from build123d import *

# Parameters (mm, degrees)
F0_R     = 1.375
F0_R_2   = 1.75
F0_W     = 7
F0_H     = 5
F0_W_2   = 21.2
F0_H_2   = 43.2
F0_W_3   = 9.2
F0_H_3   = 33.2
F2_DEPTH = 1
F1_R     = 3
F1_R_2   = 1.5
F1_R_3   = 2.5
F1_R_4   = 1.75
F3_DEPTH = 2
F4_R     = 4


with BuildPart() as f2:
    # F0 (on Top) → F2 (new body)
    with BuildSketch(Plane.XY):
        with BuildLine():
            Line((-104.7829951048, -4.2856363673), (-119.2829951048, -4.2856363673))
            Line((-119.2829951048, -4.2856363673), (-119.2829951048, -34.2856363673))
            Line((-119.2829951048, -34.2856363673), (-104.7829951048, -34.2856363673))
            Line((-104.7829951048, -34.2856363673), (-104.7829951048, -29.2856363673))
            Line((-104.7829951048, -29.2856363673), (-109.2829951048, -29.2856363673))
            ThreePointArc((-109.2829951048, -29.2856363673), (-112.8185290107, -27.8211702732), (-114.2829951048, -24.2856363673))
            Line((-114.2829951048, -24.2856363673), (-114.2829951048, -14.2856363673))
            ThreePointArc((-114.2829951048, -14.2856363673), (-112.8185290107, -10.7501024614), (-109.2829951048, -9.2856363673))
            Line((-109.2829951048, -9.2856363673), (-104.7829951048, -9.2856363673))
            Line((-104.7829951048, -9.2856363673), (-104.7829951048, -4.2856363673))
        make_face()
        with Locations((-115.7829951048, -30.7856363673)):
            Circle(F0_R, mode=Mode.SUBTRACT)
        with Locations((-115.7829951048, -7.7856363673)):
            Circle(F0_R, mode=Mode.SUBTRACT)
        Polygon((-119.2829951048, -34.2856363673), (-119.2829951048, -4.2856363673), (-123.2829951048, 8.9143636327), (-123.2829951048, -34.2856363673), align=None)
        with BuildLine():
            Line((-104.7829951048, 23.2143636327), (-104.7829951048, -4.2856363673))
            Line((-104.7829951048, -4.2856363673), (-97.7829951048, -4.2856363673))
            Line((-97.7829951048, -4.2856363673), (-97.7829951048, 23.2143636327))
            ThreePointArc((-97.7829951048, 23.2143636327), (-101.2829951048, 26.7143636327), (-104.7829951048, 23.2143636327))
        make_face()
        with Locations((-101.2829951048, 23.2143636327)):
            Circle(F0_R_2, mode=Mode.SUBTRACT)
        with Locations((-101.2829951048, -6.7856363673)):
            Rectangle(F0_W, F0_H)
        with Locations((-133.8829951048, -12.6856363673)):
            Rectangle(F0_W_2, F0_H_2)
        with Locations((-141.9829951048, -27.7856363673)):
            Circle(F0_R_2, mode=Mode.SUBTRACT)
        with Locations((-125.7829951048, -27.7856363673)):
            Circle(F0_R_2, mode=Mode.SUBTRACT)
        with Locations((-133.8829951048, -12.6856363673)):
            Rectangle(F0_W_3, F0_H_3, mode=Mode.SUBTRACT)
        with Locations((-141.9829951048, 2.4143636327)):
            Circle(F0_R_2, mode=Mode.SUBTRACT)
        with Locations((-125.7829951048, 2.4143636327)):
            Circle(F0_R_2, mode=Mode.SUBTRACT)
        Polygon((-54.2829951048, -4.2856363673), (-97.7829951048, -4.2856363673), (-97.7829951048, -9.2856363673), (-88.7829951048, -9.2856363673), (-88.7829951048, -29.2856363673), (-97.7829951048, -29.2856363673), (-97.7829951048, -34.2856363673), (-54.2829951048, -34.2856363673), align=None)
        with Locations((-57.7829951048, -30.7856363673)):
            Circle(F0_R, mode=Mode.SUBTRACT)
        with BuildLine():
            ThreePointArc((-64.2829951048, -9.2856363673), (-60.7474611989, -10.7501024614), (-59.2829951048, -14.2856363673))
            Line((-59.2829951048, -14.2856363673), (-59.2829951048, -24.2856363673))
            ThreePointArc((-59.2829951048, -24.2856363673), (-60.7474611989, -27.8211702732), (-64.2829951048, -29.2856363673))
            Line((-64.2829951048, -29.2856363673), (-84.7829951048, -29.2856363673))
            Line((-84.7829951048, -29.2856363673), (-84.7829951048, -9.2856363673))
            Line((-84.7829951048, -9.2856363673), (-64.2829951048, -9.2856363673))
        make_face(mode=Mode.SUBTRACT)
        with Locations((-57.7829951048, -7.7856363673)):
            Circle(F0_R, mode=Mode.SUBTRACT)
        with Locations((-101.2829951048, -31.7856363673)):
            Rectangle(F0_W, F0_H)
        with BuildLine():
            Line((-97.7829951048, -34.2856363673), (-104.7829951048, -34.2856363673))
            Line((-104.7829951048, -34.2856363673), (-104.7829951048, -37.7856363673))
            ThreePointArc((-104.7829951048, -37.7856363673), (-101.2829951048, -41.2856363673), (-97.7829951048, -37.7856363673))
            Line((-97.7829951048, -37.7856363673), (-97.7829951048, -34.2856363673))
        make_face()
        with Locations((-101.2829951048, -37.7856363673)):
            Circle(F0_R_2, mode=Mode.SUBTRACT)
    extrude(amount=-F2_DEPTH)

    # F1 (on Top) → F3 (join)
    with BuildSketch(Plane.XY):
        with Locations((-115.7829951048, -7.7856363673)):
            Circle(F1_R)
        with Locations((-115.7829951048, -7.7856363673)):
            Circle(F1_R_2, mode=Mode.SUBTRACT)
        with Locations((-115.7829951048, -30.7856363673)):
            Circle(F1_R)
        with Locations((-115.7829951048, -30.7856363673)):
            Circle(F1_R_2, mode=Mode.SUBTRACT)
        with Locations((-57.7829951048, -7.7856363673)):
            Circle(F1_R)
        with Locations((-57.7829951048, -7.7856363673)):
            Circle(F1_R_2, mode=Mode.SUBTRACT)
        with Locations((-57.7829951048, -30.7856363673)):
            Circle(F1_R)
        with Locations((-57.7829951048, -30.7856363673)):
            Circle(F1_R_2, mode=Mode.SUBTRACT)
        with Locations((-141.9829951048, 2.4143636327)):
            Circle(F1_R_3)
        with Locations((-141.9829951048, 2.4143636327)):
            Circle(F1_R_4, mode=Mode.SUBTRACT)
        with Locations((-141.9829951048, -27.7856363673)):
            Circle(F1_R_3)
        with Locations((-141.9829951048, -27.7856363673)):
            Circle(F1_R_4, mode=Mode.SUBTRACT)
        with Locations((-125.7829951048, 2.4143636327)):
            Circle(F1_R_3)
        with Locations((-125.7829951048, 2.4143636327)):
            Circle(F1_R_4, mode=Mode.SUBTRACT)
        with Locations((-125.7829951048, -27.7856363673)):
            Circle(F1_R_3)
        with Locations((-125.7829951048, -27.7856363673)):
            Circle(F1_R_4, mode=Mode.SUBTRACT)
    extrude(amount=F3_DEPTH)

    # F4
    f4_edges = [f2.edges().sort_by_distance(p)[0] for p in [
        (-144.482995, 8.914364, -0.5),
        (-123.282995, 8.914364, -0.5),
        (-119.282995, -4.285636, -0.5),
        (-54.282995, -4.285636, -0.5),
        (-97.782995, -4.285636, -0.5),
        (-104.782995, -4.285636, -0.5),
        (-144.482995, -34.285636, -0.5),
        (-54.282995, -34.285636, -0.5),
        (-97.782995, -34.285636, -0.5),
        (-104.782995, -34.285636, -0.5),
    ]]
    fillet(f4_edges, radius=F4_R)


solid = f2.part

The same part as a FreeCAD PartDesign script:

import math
import FreeCAD as App
import Part
import Sketcher


def edges_at(feature, points):
    """Names of the edges that pass closest to the given points."""
    edges = feature.Shape.Edges
    near = lambda p: min(range(len(edges)), key=lambda i: edges[i].distToShape(Part.Vertex(*p))[0])
    return sorted({f"Edge{near(p) + 1}" for p in points})


def add_polygon(sketch, points):
    """Adds a closed chain of lines whose ends are joined by coincident constraints."""
    first, n = sketch.GeometryCount, len(points)
    for a, b in zip(points, points[1:] + points[:1]):
        sketch.addGeometry(Part.LineSegment(App.Vector(*a, 0), App.Vector(*b, 0)), False)
    for i in range(n):
        sketch.addConstraint(Sketcher.Constraint("Coincident", first + i, 2, first + (i + 1) % n, 1))

doc = App.newDocument("Part")
body = doc.addObject("PartDesign::Body", "Body")

# Sketch on XY plane
sketch1 = body.newObject("Sketcher::SketchObject", "Sketch")
sketch1.AttachmentSupport = (doc.getObject("XY_Plane"), [""])
sketch1.MapMode = "FlatFace"
sketch1.addGeometry(Part.LineSegment(App.Vector(-104.8, -4.3, 0), App.Vector(-119.3, -4.3, 0)), False)  # 0
sketch1.addGeometry(Part.LineSegment(App.Vector(-119.3, -4.3, 0), App.Vector(-123.3, 8.9, 0)), False)  # 1
sketch1.addGeometry(Part.LineSegment(App.Vector(-123.3, 8.9, 0), App.Vector(-144.5, 8.9, 0)), False)  # 2
sketch1.addGeometry(Part.LineSegment(App.Vector(-144.5, 8.9, 0), App.Vector(-144.5, -34.3, 0)), False)  # 3
sketch1.addGeometry(Part.LineSegment(App.Vector(-144.5, -34.3, 0), App.Vector(-104.8, -34.3, 0)), False)  # 4
sketch1.addGeometry(Part.LineSegment(App.Vector(-104.8, -34.3, 0), App.Vector(-104.8, -37.8, 0)), False)  # 5
sketch1.addGeometry(Part.ArcOfCircle(Part.Circle(App.Vector(-101.3, -37.8, 0), App.Vector(0, 0, 1), 3.5), math.radians(180), math.radians(360)), False)  # 6
sketch1.addGeometry(Part.LineSegment(App.Vector(-97.8, -37.8, 0), App.Vector(-97.8, -34.3, 0)), False)  # 7
sketch1.addGeometry(Part.LineSegment(App.Vector(-97.8, -34.3, 0), App.Vector(-54.3, -34.3, 0)), False)  # 8
sketch1.addGeometry(Part.LineSegment(App.Vector(-54.3, -34.3, 0), App.Vector(-54.3, -4.3, 0)), False)  # 9
sketch1.addGeometry(Part.LineSegment(App.Vector(-54.3, -4.3, 0), App.Vector(-97.8, -4.3, 0)), False)  # 10
sketch1.addGeometry(Part.LineSegment(App.Vector(-97.8, -4.3, 0), App.Vector(-97.8, 23.2, 0)), False)  # 11
sketch1.addGeometry(Part.ArcOfCircle(Part.Circle(App.Vector(-101.3, 23.2, 0), App.Vector(0, 0, 1), 3.5), math.radians(0), math.radians(180)), False)  # 12
sketch1.addGeometry(Part.LineSegment(App.Vector(-104.8, 23.2, 0), App.Vector(-104.8, -4.3, 0)), False)  # 13
sketch1.addGeometry(Part.Circle(App.Vector(-142, -27.8, 0), App.Vector(0, 0, 1), 1.8), False)  # 14
sketch1.addGeometry(Part.Circle(App.Vector(-125.8, -27.8, 0), App.Vector(0, 0, 1), 1.8), False)  # 15
sketch1.addGeometry(Part.Circle(App.Vector(-101.3, -37.8, 0), App.Vector(0, 0, 1), 1.8), False)  # 16
sketch1.addGeometry(Part.Circle(App.Vector(-115.8, -30.8, 0), App.Vector(0, 0, 1), 1.4), False)  # 17
add_polygon(sketch1, [(-129.3, -29.3), (-138.5, -29.3), (-138.5, 3.9), (-129.3, 3.9)])  # lines 18-21
sketch1.addGeometry(Part.ArcOfCircle(Part.Circle(App.Vector(-109.3, -24.3, 0), App.Vector(0, 0, 1), 5), math.radians(180), math.radians(270)), False)  # 22
sketch1.addGeometry(Part.LineSegment(App.Vector(-114.3, -24.3, 0), App.Vector(-114.3, -14.3, 0)), False)  # 23
sketch1.addGeometry(Part.ArcOfCircle(Part.Circle(App.Vector(-109.3, -14.3, 0), App.Vector(0, 0, 1), 5), math.radians(90), math.radians(180)), False)  # 24
sketch1.addGeometry(Part.LineSegment(App.Vector(-109.3, -9.3, 0), App.Vector(-88.8, -9.3, 0)), False)  # 25
sketch1.addGeometry(Part.LineSegment(App.Vector(-88.8, -9.3, 0), App.Vector(-88.8, -29.3, 0)), False)  # 26
sketch1.addGeometry(Part.LineSegment(App.Vector(-88.8, -29.3, 0), App.Vector(-109.3, -29.3, 0)), False)  # 27
sketch1.addGeometry(Part.Circle(App.Vector(-115.8, -7.8, 0), App.Vector(0, 0, 1), 1.4), False)  # 28
sketch1.addGeometry(Part.Circle(App.Vector(-57.8, -30.8, 0), App.Vector(0, 0, 1), 1.4), False)  # 29
sketch1.addGeometry(Part.LineSegment(App.Vector(-84.8, -9.3, 0), App.Vector(-64.3, -9.3, 0)), False)  # 30
sketch1.addGeometry(Part.ArcOfCircle(Part.Circle(App.Vector(-64.3, -14.3, 0), App.Vector(0, 0, 1), 5), math.radians(0), math.radians(90)), False)  # 31
sketch1.addGeometry(Part.LineSegment(App.Vector(-59.3, -14.3, 0), App.Vector(-59.3, -24.3, 0)), False)  # 32
sketch1.addGeometry(Part.ArcOfCircle(Part.Circle(App.Vector(-64.3, -24.3, 0), App.Vector(0, 0, 1), 5), math.radians(-90), math.radians(0)), False)  # 33
sketch1.addGeometry(Part.LineSegment(App.Vector(-64.3, -29.3, 0), App.Vector(-84.8, -29.3, 0)), False)  # 34
sketch1.addGeometry(Part.LineSegment(App.Vector(-84.8, -29.3, 0), App.Vector(-84.8, -9.3, 0)), False)  # 35
sketch1.addGeometry(Part.Circle(App.Vector(-57.8, -7.8, 0), App.Vector(0, 0, 1), 1.4), False)  # 36
sketch1.addGeometry(Part.Circle(App.Vector(-142, 2.4, 0), App.Vector(0, 0, 1), 1.8), False)  # 37
sketch1.addGeometry(Part.Circle(App.Vector(-125.8, 2.4, 0), App.Vector(0, 0, 1), 1.8), False)  # 38
sketch1.addGeometry(Part.Circle(App.Vector(-101.3, 23.2, 0), App.Vector(0, 0, 1), 1.8), False)  # 39
sketch1.addConstraint(Sketcher.Constraint("Coincident", 0, 2, 1, 1))
sketch1.addConstraint(Sketcher.Constraint("Coincident", 1, 2, 2, 1))
sketch1.addConstraint(Sketcher.Constraint("Coincident", 2, 2, 3, 1))
sketch1.addConstraint(Sketcher.Constraint("Coincident", 3, 2, 4, 1))
sketch1.addConstraint(Sketcher.Constraint("Coincident", 4, 2, 5, 1))
sketch1.addConstraint(Sketcher.Constraint("Tangent", 5, 2, 6, 1))
sketch1.addConstraint(Sketcher.Constraint("Tangent", 6, 2, 7, 1))
sketch1.addConstraint(Sketcher.Constraint("Coincident", 7, 2, 8, 1))
sketch1.addConstraint(Sketcher.Constraint("Coincident", 8, 2, 9, 1))
sketch1.addConstraint(Sketcher.Constraint("Coincident", 9, 2, 10, 1))
sketch1.addConstraint(Sketcher.Constraint("Coincident", 10, 2, 11, 1))
sketch1.addConstraint(Sketcher.Constraint("Tangent", 11, 2, 12, 1))
sketch1.addConstraint(Sketcher.Constraint("Tangent", 12, 2, 13, 1))
sketch1.addConstraint(Sketcher.Constraint("Coincident", 13, 2, 0, 1))
sketch1.addConstraint(Sketcher.Constraint("Tangent", 22, 1, 23, 1))
sketch1.addConstraint(Sketcher.Constraint("Tangent", 23, 2, 24, 2))
sketch1.addConstraint(Sketcher.Constraint("Tangent", 24, 1, 25, 1))
sketch1.addConstraint(Sketcher.Constraint("Coincident", 25, 2, 26, 1))
sketch1.addConstraint(Sketcher.Constraint("Coincident", 26, 2, 27, 1))
sketch1.addConstraint(Sketcher.Constraint("Tangent", 27, 2, 22, 2))
sketch1.addConstraint(Sketcher.Constraint("Tangent", 30, 2, 31, 2))
sketch1.addConstraint(Sketcher.Constraint("Tangent", 31, 1, 32, 1))
sketch1.addConstraint(Sketcher.Constraint("Tangent", 32, 2, 33, 2))
sketch1.addConstraint(Sketcher.Constraint("Tangent", 33, 1, 34, 1))
sketch1.addConstraint(Sketcher.Constraint("Coincident", 34, 2, 35, 1))
sketch1.addConstraint(Sketcher.Constraint("Coincident", 35, 2, 30, 1))
sketch1.addConstraint(Sketcher.Constraint("Horizontal", 0))
sketch1.addConstraint(Sketcher.Constraint("Horizontal", 2))
sketch1.addConstraint(Sketcher.Constraint("Vertical", 3))
sketch1.addConstraint(Sketcher.Constraint("Horizontal", 4))
sketch1.addConstraint(Sketcher.Constraint("Vertical", 5))
sketch1.addConstraint(Sketcher.Constraint("Vertical", 7))
sketch1.addConstraint(Sketcher.Constraint("Horizontal", 8))
sketch1.addConstraint(Sketcher.Constraint("Vertical", 9))
sketch1.addConstraint(Sketcher.Constraint("Horizontal", 10))
sketch1.addConstraint(Sketcher.Constraint("Vertical", 11))
sketch1.addConstraint(Sketcher.Constraint("Vertical", 13))
sketch1.addConstraint(Sketcher.Constraint("Horizontal", 18))
sketch1.addConstraint(Sketcher.Constraint("Vertical", 19))
sketch1.addConstraint(Sketcher.Constraint("Horizontal", 20))
sketch1.addConstraint(Sketcher.Constraint("Vertical", 21))
sketch1.addConstraint(Sketcher.Constraint("Vertical", 23))
sketch1.addConstraint(Sketcher.Constraint("Horizontal", 25))
sketch1.addConstraint(Sketcher.Constraint("Vertical", 26))
sketch1.addConstraint(Sketcher.Constraint("Horizontal", 27))
sketch1.addConstraint(Sketcher.Constraint("Horizontal", 30))
sketch1.addConstraint(Sketcher.Constraint("Vertical", 32))
sketch1.addConstraint(Sketcher.Constraint("Horizontal", 34))
sketch1.addConstraint(Sketcher.Constraint("Vertical", 35))
sketch1.addConstraint(Sketcher.Constraint("Coincident", 16, 3, 6, 3))
sketch1.addConstraint(Sketcher.Constraint("Coincident", 39, 3, 12, 3))
sketch1.addConstraint(Sketcher.Constraint("Equal", 6, 12))
sketch1.addConstraint(Sketcher.Constraint("Equal", 14, 15))
sketch1.addConstraint(Sketcher.Constraint("Equal", 15, 16))
sketch1.addConstraint(Sketcher.Constraint("Equal", 22, 24))
sketch1.addConstraint(Sketcher.Constraint("Equal", 17, 28))
sketch1.addConstraint(Sketcher.Constraint("Equal", 28, 29))
sketch1.addConstraint(Sketcher.Constraint("Equal", 24, 31))
sketch1.addConstraint(Sketcher.Constraint("Equal", 31, 33))
sketch1.addConstraint(Sketcher.Constraint("Equal", 29, 36))
sketch1.addConstraint(Sketcher.Constraint("Equal", 16, 37))
sketch1.addConstraint(Sketcher.Constraint("Equal", 37, 38))
sketch1.addConstraint(Sketcher.Constraint("Equal", 38, 39))
sketch1.addConstraint(Sketcher.Constraint("Horizontal", 14, 3, 15, 3))
sketch1.addConstraint(Sketcher.Constraint("Horizontal", 17, 3, 29, 3))
sketch1.addConstraint(Sketcher.Constraint("Horizontal", 24, 3, 31, 3))
sketch1.addConstraint(Sketcher.Constraint("Horizontal", 22, 3, 33, 3))
sketch1.addConstraint(Sketcher.Constraint("Horizontal", 28, 3, 36, 3))
sketch1.addConstraint(Sketcher.Constraint("Horizontal", 37, 3, 38, 3))
sketch1.addConstraint(Sketcher.Constraint("Horizontal", 4, 2, 7, 2))
sketch1.addConstraint(Sketcher.Constraint("Horizontal", 0, 2, 9, 2))
sketch1.addConstraint(Sketcher.Constraint("Horizontal", 21, 2, 26, 2))
sketch1.addConstraint(Sketcher.Constraint("Vertical", 6, 3, 12, 3))
sketch1.addConstraint(Sketcher.Constraint("Vertical", 17, 3, 28, 3))
sketch1.addConstraint(Sketcher.Constraint("Vertical", 29, 3, 36, 3))
sketch1.addConstraint(Sketcher.Constraint("Vertical", 14, 3, 37, 3))
sketch1.addConstraint(Sketcher.Constraint("Vertical", 15, 3, 38, 3))
sketch1.addConstraint(Sketcher.Constraint("Equal", 27, 30))
sketch1.addConstraint(Sketcher.Constraint("Radius", 22, 5.0))
sketch1.addConstraint(Sketcher.Constraint("Diameter", 14, 3.5))
sketch1.addConstraint(Sketcher.Constraint("Radius", 6, 3.5))
sketch1.addConstraint(Sketcher.Constraint("Diameter", 17, 2.75))
sketch1.addConstraint(Sketcher.Constraint("DistanceY", 9, 1, 9, 2, 30.0))
sketch1.addConstraint(Sketcher.Constraint("DistanceY", 23, 1, 23, 2, 10.0))
sketch1.addConstraint(Sketcher.Constraint("DistanceX", 0, 2, 0, 1, 14.5))
sketch1.addConstraint(Sketcher.Constraint("DistanceX", 2, 2, 2, 1, 21.2))
sketch1.addConstraint(Sketcher.Constraint("DistanceX", 4, 1, 4, 2, 39.7))
sketch1.addConstraint(Sketcher.Constraint("DistanceX", 8, 1, 8, 2, 43.5))
sketch1.addConstraint(Sketcher.Constraint("DistanceX", 18, 2, 18, 1, 9.2))
sketch1.addConstraint(Sketcher.Constraint("DistanceX", 25, 1, 25, 2, 20.5))
sketch1.addConstraint(Sketcher.Constraint("DistanceY", 3, 2, 3, 1, 43.2))
sketch1.addConstraint(Sketcher.Constraint("DistanceY", 5, 2, 5, 1, 3.5))
sketch1.addConstraint(Sketcher.Constraint("DistanceY", 11, 1, 11, 2, 27.5))
sketch1.addConstraint(Sketcher.Constraint("DistanceY", 19, 1, 19, 2, 33.2))
sketch1.addConstraint(Sketcher.Constraint("DistanceY", 6, 3, 14, 3, 10.0))
sketch1.addConstraint(Sketcher.Constraint("DistanceX", 15, 3, 17, 3, 10.0))
sketch1.addConstraint(Sketcher.Constraint("DistanceY", 17, 3, 15, 3, 3.0))
sketch1.addConstraint(Sketcher.Constraint("DistanceX", 22, 3, 6, 3, 8.0))
sketch1.addConstraint(Sketcher.Constraint("DistanceY", 15, 3, 28, 3, 20.0))
sketch1.addConstraint(Sketcher.Constraint("DistanceX", 17, 3, 29, 3, 58.0))
sketch1.addConstraint(Sketcher.Constraint("DistanceX", 6, 3, 31, 3, 37.0))
sketch1.addConstraint(Sketcher.Constraint("DistanceY", 24, 3, 0, 2, 10.0))
sketch1.addConstraint(Sketcher.Constraint("DistanceX", 17, 3, 4, 2, 11.0))
sketch1.addConstraint(Sketcher.Constraint("DistanceX", 3, 2, 18, 2, 6.0))
sketch1.addConstraint(Sketcher.Constraint("DistanceX", 14, 3, 6, 3, 40.7))
sketch1.addConstraint(Sketcher.Constraint("DistanceY", 28, 3, 37, 3, 10.2))
sketch1.addConstraint(Sketcher.Constraint("DistanceX", 6, 3, -1, 1, 101.282995))
sketch1.addConstraint(Sketcher.Constraint("DistanceY", 6, 3, -1, 1, 37.785636))
pad1 = body.newObject("PartDesign::Pad", "Pad")
pad1.Profile = sketch1
pad1.Length = 1
pad1.Reversed = True

# Sketch on XY plane
sketch2 = body.newObject("Sketcher::SketchObject", "Sketch001")
sketch2.AttachmentSupport = (doc.getObject("XY_Plane"), [""])
sketch2.MapMode = "FlatFace"
sketch2.addGeometry(Part.Circle(App.Vector(-115.8, -7.8, 0), App.Vector(0, 0, 1), 3), False)
sketch2.addGeometry(Part.Circle(App.Vector(-115.8, -7.8, 0), App.Vector(0, 0, 1), 1.5), False)
sketch2.addGeometry(Part.Circle(App.Vector(-115.8, -30.8, 0), App.Vector(0, 0, 1), 3), False)
sketch2.addGeometry(Part.Circle(App.Vector(-115.8, -30.8, 0), App.Vector(0, 0, 1), 1.5), False)
sketch2.addGeometry(Part.Circle(App.Vector(-57.8, -7.8, 0), App.Vector(0, 0, 1), 3), False)
sketch2.addGeometry(Part.Circle(App.Vector(-57.8, -7.8, 0), App.Vector(0, 0, 1), 1.5), False)
sketch2.addGeometry(Part.Circle(App.Vector(-57.8, -30.8, 0), App.Vector(0, 0, 1), 3), False)
sketch2.addGeometry(Part.Circle(App.Vector(-57.8, -30.8, 0), App.Vector(0, 0, 1), 1.5), False)
sketch2.addGeometry(Part.Circle(App.Vector(-142, 2.4, 0), App.Vector(0, 0, 1), 2.5), False)
sketch2.addGeometry(Part.Circle(App.Vector(-142, 2.4, 0), App.Vector(0, 0, 1), 1.8), False)
sketch2.addGeometry(Part.Circle(App.Vector(-142, -27.8, 0), App.Vector(0, 0, 1), 2.5), False)
sketch2.addGeometry(Part.Circle(App.Vector(-142, -27.8, 0), App.Vector(0, 0, 1), 1.8), False)
sketch2.addGeometry(Part.Circle(App.Vector(-125.8, 2.4, 0), App.Vector(0, 0, 1), 2.5), False)
sketch2.addGeometry(Part.Circle(App.Vector(-125.8, 2.4, 0), App.Vector(0, 0, 1), 1.8), False)
sketch2.addGeometry(Part.Circle(App.Vector(-125.8, -27.8, 0), App.Vector(0, 0, 1), 2.5), False)
sketch2.addGeometry(Part.Circle(App.Vector(-125.8, -27.8, 0), App.Vector(0, 0, 1), 1.8), False)
sketch2.addConstraint(Sketcher.Constraint("Coincident", 1, 3, 0, 3))
sketch2.addConstraint(Sketcher.Constraint("Coincident", 3, 3, 2, 3))
sketch2.addConstraint(Sketcher.Constraint("Coincident", 5, 3, 4, 3))
sketch2.addConstraint(Sketcher.Constraint("Coincident", 7, 3, 6, 3))
sketch2.addConstraint(Sketcher.Constraint("Coincident", 9, 3, 8, 3))
sketch2.addConstraint(Sketcher.Constraint("Coincident", 11, 3, 10, 3))
sketch2.addConstraint(Sketcher.Constraint("Coincident", 13, 3, 12, 3))
sketch2.addConstraint(Sketcher.Constraint("Coincident", 15, 3, 14, 3))
sketch2.addConstraint(Sketcher.Constraint("Equal", 0, 2))
sketch2.addConstraint(Sketcher.Constraint("Equal", 1, 3))
sketch2.addConstraint(Sketcher.Constraint("Equal", 2, 4))
sketch2.addConstraint(Sketcher.Constraint("Equal", 3, 5))
sketch2.addConstraint(Sketcher.Constraint("Equal", 4, 6))
sketch2.addConstraint(Sketcher.Constraint("Equal", 5, 7))
sketch2.addConstraint(Sketcher.Constraint("Equal", 8, 10))
sketch2.addConstraint(Sketcher.Constraint("Equal", 9, 11))
sketch2.addConstraint(Sketcher.Constraint("Equal", 10, 12))
sketch2.addConstraint(Sketcher.Constraint("Equal", 11, 13))
sketch2.addConstraint(Sketcher.Constraint("Equal", 12, 14))
sketch2.addConstraint(Sketcher.Constraint("Equal", 13, 15))
sketch2.addConstraint(Sketcher.Constraint("Horizontal", 1, 3, 4, 3))
sketch2.addConstraint(Sketcher.Constraint("Horizontal", 3, 3, 6, 3))
sketch2.addConstraint(Sketcher.Constraint("Horizontal", 9, 3, 12, 3))
sketch2.addConstraint(Sketcher.Constraint("Horizontal", 11, 3, 14, 3))
sketch2.addConstraint(Sketcher.Constraint("Vertical", 1, 3, 2, 3))
sketch2.addConstraint(Sketcher.Constraint("Vertical", 5, 3, 6, 3))
sketch2.addConstraint(Sketcher.Constraint("Vertical", 9, 3, 10, 3))
sketch2.addConstraint(Sketcher.Constraint("Vertical", 13, 3, 14, 3))
sketch2.addConstraint(Sketcher.Constraint("Diameter", 0, 6.0))
sketch2.addConstraint(Sketcher.Constraint("Diameter", 1, 3.0))
sketch2.addConstraint(Sketcher.Constraint("Diameter", 8, 5.0))
sketch2.addConstraint(Sketcher.Constraint("Diameter", 9, 3.5))
sketch2.addConstraint(Sketcher.Constraint("DistanceY", 2, 3, 0, 3, 23.0))
sketch2.addConstraint(Sketcher.Constraint("DistanceX", 0, 3, 4, 3, 58.0))
sketch2.addConstraint(Sketcher.Constraint("DistanceY", 2, 3, 10, 3, 3.0))
sketch2.addConstraint(Sketcher.Constraint("DistanceX", 12, 3, 0, 3, 10.0))
sketch2.addConstraint(Sketcher.Constraint("DistanceX", 8, 3, 0, 3, 26.2))
sketch2.addConstraint(Sketcher.Constraint("DistanceY", 0, 3, 8, 3, 10.2))
sketch2.addConstraint(Sketcher.Constraint("DistanceX", 0, 3, -1, 1, 115.782995))
sketch2.addConstraint(Sketcher.Constraint("DistanceY", 0, 3, -1, 1, 7.785636))
pad2 = body.newObject("PartDesign::Pad", "Pad001")
pad2.Profile = sketch2
pad2.Length = 2
doc.recompute()

fillet = body.newObject("PartDesign::Fillet", "Fillet")
fillet.Base = (pad2, edges_at(pad2, [
    (-144.483, 8.914, -0.5),
    (-123.283, 8.914, -0.5),
    (-119.283, -4.286, -0.5),
    (-54.283, -4.286, -0.5),
    (-97.783, -4.286, -0.5),
    (-104.783, -4.286, -0.5),
    (-144.483, -34.286, -0.5),
    (-54.283, -34.286, -0.5),
    (-97.783, -34.286, -0.5),
    (-104.783, -34.286, -0.5),
]))
fillet.Radius = 4

doc.recompute()
